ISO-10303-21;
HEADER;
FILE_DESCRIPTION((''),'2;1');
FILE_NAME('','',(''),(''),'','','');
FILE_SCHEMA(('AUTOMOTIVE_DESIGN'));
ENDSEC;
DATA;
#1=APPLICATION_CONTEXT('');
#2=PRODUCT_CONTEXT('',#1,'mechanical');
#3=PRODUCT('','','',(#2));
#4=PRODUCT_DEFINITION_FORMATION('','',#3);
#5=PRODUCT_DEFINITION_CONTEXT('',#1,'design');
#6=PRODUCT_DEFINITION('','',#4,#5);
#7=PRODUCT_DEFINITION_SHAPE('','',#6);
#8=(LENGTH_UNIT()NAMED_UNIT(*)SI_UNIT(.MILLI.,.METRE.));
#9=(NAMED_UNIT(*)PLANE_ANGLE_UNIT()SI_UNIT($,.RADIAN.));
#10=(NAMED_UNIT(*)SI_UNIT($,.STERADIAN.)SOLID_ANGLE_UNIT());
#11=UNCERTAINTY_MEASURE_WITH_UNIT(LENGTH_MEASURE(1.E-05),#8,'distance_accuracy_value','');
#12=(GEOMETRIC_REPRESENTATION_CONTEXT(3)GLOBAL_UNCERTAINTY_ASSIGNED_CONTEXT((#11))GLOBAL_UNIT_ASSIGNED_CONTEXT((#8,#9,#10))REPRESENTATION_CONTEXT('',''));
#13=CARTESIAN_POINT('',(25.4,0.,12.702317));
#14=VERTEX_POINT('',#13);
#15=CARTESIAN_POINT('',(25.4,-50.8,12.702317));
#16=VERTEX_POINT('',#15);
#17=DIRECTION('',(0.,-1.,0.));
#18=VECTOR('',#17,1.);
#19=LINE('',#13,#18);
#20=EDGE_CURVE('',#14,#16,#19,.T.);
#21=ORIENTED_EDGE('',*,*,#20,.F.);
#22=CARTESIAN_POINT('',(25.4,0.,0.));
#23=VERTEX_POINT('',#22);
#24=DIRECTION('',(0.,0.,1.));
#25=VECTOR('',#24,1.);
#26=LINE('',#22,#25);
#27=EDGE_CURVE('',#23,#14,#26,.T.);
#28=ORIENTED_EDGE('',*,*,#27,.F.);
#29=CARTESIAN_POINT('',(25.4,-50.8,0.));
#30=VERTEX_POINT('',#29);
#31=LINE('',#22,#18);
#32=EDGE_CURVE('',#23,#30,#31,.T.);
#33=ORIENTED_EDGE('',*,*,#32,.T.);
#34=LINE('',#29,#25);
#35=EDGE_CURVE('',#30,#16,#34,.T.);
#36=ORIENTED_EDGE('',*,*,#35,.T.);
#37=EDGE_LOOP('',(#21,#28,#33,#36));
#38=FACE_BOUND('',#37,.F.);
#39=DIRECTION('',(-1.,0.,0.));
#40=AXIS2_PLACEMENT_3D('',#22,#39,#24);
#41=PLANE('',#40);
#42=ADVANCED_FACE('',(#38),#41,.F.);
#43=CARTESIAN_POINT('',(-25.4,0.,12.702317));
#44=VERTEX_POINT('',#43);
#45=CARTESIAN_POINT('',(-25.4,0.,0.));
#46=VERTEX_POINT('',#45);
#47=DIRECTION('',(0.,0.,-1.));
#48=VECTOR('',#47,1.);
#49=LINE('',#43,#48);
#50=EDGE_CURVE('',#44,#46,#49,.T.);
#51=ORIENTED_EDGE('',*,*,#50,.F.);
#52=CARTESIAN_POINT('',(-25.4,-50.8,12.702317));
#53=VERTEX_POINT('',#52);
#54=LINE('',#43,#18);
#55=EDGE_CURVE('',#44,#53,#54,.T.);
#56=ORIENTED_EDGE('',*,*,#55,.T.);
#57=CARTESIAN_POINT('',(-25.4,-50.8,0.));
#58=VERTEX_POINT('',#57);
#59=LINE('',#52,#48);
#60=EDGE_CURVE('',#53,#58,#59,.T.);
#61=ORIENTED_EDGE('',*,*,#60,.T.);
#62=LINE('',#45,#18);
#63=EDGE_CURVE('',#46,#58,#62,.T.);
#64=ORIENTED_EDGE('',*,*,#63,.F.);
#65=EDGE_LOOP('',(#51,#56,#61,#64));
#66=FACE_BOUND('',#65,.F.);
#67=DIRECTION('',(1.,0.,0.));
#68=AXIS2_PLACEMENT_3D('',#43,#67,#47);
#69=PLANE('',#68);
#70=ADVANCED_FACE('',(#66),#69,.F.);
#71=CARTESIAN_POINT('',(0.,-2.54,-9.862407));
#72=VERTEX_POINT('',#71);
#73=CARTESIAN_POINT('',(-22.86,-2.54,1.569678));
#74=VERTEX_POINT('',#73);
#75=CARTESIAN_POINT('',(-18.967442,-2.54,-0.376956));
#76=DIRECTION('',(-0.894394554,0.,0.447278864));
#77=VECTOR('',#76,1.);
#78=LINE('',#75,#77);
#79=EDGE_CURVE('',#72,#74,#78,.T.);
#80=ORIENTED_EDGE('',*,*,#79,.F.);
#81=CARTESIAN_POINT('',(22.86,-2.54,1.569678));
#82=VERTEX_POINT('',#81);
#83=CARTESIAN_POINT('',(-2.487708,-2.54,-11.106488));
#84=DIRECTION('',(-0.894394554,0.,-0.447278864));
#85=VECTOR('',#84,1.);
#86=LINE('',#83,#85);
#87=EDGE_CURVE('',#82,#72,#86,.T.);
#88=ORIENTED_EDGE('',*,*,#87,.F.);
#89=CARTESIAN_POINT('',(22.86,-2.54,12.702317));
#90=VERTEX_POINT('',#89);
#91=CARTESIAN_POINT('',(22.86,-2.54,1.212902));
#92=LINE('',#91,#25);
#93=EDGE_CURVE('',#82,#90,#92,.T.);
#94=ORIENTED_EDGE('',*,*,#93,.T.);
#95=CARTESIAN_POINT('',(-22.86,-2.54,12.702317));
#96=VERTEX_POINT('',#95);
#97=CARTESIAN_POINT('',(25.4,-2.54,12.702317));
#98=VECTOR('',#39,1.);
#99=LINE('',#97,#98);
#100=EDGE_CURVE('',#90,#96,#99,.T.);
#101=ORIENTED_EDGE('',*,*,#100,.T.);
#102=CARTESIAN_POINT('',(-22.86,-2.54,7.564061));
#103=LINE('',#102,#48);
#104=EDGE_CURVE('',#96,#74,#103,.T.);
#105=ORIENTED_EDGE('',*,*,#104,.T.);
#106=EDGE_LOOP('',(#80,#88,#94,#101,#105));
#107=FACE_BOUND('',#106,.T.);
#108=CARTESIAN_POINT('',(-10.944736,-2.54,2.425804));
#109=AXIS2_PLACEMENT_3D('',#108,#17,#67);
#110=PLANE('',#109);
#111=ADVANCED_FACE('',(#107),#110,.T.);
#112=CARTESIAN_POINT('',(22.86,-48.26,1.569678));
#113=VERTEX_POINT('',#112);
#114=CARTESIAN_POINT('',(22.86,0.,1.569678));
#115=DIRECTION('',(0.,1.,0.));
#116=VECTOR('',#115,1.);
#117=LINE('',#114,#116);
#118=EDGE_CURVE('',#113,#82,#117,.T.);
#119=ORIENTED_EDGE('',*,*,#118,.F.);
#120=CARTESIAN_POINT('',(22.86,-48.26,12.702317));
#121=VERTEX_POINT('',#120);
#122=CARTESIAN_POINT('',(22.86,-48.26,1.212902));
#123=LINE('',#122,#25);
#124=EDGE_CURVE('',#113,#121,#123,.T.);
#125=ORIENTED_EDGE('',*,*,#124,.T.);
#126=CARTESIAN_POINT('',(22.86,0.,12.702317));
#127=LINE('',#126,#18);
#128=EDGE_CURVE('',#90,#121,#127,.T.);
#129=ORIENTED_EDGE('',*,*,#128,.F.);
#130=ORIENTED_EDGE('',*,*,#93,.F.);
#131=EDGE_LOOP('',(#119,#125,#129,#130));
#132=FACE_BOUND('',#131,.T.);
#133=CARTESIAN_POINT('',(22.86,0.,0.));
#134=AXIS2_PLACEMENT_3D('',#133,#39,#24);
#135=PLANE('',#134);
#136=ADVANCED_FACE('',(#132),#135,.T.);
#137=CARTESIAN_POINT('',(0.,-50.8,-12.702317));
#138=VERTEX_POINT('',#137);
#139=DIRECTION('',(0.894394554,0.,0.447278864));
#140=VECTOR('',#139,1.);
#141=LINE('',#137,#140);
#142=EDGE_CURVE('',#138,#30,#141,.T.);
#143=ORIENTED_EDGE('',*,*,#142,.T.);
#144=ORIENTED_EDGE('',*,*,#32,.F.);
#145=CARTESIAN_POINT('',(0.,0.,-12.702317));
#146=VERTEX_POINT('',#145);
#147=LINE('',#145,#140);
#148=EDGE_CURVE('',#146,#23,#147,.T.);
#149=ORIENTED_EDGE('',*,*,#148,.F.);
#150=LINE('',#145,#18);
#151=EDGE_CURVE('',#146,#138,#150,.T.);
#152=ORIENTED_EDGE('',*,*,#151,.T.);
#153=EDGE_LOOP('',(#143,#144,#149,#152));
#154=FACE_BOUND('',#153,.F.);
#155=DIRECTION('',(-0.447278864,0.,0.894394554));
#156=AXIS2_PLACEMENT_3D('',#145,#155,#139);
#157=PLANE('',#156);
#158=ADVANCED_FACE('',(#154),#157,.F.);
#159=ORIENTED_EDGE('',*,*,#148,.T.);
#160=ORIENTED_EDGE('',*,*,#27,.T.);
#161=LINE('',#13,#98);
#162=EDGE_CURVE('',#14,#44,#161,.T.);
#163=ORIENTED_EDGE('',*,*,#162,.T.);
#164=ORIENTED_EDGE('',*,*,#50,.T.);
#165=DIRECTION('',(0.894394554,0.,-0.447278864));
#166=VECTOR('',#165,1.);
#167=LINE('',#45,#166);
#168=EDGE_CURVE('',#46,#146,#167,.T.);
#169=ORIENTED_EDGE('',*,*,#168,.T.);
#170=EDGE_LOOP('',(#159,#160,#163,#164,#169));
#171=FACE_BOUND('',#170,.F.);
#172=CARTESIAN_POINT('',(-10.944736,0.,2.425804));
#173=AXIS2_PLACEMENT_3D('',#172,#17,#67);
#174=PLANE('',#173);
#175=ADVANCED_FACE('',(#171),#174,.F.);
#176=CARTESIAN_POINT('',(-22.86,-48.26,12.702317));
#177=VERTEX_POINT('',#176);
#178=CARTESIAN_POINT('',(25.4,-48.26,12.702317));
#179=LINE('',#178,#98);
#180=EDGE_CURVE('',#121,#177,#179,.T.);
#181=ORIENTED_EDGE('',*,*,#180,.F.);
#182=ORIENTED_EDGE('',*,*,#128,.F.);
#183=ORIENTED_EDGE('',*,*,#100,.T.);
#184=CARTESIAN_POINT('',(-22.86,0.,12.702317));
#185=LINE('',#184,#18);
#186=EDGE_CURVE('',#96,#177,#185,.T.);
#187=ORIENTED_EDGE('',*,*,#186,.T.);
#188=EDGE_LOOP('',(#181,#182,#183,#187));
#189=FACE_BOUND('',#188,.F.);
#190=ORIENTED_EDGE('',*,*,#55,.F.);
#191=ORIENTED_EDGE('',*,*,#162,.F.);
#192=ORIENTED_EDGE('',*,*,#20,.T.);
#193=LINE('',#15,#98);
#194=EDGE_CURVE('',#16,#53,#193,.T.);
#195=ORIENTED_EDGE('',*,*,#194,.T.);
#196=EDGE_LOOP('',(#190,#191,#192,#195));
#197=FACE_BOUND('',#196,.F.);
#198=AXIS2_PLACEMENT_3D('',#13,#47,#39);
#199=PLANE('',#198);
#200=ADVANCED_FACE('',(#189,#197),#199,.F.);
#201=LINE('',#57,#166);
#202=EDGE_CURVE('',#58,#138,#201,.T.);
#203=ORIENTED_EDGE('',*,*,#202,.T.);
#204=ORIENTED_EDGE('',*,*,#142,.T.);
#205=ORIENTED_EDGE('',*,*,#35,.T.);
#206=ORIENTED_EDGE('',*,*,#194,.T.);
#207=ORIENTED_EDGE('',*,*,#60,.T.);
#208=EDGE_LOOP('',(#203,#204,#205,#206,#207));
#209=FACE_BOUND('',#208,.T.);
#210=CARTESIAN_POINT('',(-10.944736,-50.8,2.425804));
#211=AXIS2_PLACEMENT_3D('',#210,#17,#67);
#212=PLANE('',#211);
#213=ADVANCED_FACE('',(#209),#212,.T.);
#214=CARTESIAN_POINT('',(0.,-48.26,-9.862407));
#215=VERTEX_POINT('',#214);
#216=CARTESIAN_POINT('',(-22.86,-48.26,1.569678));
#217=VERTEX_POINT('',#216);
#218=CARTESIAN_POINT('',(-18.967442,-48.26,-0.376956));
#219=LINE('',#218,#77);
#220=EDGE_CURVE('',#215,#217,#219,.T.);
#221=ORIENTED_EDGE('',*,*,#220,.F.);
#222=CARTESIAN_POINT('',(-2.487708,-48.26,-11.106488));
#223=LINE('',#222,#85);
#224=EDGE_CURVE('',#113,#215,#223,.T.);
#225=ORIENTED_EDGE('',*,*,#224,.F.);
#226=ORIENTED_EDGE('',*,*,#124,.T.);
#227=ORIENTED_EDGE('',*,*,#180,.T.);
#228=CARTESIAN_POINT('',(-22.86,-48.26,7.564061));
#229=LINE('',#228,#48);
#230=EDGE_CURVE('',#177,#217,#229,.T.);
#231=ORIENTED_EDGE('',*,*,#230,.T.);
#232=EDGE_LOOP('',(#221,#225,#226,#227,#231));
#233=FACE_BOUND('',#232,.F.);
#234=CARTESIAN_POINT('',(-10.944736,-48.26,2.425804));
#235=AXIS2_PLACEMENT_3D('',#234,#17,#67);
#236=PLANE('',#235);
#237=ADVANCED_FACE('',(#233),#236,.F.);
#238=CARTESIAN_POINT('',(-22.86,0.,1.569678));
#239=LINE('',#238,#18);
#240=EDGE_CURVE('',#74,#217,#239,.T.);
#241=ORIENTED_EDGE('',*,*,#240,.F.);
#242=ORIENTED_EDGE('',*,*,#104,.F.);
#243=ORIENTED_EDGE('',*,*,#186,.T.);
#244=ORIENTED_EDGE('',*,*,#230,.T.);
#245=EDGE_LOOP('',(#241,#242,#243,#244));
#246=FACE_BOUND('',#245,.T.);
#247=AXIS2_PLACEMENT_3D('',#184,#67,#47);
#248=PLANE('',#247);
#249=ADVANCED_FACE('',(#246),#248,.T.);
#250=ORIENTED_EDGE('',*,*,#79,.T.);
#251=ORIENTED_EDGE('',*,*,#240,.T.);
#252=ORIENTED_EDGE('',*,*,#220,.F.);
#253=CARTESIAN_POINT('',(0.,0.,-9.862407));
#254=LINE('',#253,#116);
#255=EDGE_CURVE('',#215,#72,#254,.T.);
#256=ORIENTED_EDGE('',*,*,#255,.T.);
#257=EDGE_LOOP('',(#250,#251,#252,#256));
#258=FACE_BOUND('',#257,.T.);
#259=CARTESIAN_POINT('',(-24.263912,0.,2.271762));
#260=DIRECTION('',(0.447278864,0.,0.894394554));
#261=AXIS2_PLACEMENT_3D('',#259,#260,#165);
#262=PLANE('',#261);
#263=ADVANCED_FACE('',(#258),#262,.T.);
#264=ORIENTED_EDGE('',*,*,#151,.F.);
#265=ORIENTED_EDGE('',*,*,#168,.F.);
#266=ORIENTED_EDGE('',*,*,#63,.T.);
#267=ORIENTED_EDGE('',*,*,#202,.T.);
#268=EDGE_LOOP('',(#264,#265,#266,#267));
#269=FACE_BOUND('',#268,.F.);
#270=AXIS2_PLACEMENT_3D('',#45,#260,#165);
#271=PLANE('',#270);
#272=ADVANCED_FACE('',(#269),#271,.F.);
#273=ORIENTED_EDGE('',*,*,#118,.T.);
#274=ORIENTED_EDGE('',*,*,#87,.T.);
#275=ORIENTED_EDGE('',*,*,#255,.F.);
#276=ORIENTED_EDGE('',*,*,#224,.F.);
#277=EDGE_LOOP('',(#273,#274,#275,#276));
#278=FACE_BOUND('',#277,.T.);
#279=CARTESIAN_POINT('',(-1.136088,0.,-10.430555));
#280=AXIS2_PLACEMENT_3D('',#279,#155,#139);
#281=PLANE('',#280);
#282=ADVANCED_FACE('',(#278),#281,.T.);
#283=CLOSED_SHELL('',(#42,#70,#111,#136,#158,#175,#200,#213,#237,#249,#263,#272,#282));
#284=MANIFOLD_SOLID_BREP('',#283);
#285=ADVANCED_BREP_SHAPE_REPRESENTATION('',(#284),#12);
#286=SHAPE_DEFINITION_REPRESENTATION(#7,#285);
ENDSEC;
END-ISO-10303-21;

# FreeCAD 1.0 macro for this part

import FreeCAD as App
import Part
import Sketcher
from FreeCAD import Vector
Q = App.Units.Quantity


def faces_at(feature, points):
    """Names of the faces that lie closest to the given points."""
    faces = feature.Shape.Faces
    near = lambda p: min(range(len(faces)), key=lambda i: faces[i].distToShape(Part.Vertex(*p))[0])
    return sorted({f"Face{near(p) + 1}" for p in points})


def add_polygon(sketch, points):
    """Adds a closed chain of lines whose ends are joined by coincident constraints."""
    first, n = sketch.GeometryCount, len(points)
    for a, b in zip(points, points[1:] + points[:1]):
        sketch.addGeometry(Part.LineSegment(App.Vector(*a, 0), App.Vector(*b, 0)), False)
    for i in range(n):
        sketch.addConstraint(Sketcher.Constraint("Coincident", first + i, 2, first + (i + 1) % n, 1))

doc = App.newDocument("Part")
body = doc.addObject("PartDesign::Body", "Body")

# Sketch on XZ plane
sketch1 = body.newObject("Sketcher::SketchObject", "Sketch")
sketch1.AttachmentSupport = (doc.getObject("XZ_Plane"), [""])
sketch1.MapMode = "FlatFace"
add_polygon(sketch1, [(-25, 13), (-25, 0), (0, -13), (25, 0), (25, 13)])  # lines 0-4
sketch1.addConstraint([
    Sketcher.Constraint("Vertical", 0),
    Sketcher.Constraint("Vertical", 3),
    Sketcher.Constraint("Horizontal", 4),
    Sketcher.Constraint("Symmetric", 0, 2, 2, 2, -1, 1),
    Sketcher.Constraint("PointOnObject", 0, 2, -1),
    Sketcher.Constraint("PointOnObject", 1, 2, -2),
    Sketcher.Constraint("DistanceX", 4, 2, 4, 1, Q("2 in")),
    Sketcher.Constraint("Distance", 1, Q("28.3991 mm")),
    Sketcher.Constraint("DistanceY", 0, 2, 0, 1, Q("12.702317 mm")),
])
pad1 = body.newObject("PartDesign::Pad", "Pad")
pad1.Profile = sketch1
pad1.Length = Q("2 in")
doc.recompute()

thickness = body.newObject("PartDesign::Thickness", "Thickness")
thickness.Base = (pad1, faces_at(pad1, [(0, -25.4, 12.702)]))
thickness.Value = Q("0.1 in")
thickness.Reversed = True
thickness.Join = "Arc"

doc.recompute()
